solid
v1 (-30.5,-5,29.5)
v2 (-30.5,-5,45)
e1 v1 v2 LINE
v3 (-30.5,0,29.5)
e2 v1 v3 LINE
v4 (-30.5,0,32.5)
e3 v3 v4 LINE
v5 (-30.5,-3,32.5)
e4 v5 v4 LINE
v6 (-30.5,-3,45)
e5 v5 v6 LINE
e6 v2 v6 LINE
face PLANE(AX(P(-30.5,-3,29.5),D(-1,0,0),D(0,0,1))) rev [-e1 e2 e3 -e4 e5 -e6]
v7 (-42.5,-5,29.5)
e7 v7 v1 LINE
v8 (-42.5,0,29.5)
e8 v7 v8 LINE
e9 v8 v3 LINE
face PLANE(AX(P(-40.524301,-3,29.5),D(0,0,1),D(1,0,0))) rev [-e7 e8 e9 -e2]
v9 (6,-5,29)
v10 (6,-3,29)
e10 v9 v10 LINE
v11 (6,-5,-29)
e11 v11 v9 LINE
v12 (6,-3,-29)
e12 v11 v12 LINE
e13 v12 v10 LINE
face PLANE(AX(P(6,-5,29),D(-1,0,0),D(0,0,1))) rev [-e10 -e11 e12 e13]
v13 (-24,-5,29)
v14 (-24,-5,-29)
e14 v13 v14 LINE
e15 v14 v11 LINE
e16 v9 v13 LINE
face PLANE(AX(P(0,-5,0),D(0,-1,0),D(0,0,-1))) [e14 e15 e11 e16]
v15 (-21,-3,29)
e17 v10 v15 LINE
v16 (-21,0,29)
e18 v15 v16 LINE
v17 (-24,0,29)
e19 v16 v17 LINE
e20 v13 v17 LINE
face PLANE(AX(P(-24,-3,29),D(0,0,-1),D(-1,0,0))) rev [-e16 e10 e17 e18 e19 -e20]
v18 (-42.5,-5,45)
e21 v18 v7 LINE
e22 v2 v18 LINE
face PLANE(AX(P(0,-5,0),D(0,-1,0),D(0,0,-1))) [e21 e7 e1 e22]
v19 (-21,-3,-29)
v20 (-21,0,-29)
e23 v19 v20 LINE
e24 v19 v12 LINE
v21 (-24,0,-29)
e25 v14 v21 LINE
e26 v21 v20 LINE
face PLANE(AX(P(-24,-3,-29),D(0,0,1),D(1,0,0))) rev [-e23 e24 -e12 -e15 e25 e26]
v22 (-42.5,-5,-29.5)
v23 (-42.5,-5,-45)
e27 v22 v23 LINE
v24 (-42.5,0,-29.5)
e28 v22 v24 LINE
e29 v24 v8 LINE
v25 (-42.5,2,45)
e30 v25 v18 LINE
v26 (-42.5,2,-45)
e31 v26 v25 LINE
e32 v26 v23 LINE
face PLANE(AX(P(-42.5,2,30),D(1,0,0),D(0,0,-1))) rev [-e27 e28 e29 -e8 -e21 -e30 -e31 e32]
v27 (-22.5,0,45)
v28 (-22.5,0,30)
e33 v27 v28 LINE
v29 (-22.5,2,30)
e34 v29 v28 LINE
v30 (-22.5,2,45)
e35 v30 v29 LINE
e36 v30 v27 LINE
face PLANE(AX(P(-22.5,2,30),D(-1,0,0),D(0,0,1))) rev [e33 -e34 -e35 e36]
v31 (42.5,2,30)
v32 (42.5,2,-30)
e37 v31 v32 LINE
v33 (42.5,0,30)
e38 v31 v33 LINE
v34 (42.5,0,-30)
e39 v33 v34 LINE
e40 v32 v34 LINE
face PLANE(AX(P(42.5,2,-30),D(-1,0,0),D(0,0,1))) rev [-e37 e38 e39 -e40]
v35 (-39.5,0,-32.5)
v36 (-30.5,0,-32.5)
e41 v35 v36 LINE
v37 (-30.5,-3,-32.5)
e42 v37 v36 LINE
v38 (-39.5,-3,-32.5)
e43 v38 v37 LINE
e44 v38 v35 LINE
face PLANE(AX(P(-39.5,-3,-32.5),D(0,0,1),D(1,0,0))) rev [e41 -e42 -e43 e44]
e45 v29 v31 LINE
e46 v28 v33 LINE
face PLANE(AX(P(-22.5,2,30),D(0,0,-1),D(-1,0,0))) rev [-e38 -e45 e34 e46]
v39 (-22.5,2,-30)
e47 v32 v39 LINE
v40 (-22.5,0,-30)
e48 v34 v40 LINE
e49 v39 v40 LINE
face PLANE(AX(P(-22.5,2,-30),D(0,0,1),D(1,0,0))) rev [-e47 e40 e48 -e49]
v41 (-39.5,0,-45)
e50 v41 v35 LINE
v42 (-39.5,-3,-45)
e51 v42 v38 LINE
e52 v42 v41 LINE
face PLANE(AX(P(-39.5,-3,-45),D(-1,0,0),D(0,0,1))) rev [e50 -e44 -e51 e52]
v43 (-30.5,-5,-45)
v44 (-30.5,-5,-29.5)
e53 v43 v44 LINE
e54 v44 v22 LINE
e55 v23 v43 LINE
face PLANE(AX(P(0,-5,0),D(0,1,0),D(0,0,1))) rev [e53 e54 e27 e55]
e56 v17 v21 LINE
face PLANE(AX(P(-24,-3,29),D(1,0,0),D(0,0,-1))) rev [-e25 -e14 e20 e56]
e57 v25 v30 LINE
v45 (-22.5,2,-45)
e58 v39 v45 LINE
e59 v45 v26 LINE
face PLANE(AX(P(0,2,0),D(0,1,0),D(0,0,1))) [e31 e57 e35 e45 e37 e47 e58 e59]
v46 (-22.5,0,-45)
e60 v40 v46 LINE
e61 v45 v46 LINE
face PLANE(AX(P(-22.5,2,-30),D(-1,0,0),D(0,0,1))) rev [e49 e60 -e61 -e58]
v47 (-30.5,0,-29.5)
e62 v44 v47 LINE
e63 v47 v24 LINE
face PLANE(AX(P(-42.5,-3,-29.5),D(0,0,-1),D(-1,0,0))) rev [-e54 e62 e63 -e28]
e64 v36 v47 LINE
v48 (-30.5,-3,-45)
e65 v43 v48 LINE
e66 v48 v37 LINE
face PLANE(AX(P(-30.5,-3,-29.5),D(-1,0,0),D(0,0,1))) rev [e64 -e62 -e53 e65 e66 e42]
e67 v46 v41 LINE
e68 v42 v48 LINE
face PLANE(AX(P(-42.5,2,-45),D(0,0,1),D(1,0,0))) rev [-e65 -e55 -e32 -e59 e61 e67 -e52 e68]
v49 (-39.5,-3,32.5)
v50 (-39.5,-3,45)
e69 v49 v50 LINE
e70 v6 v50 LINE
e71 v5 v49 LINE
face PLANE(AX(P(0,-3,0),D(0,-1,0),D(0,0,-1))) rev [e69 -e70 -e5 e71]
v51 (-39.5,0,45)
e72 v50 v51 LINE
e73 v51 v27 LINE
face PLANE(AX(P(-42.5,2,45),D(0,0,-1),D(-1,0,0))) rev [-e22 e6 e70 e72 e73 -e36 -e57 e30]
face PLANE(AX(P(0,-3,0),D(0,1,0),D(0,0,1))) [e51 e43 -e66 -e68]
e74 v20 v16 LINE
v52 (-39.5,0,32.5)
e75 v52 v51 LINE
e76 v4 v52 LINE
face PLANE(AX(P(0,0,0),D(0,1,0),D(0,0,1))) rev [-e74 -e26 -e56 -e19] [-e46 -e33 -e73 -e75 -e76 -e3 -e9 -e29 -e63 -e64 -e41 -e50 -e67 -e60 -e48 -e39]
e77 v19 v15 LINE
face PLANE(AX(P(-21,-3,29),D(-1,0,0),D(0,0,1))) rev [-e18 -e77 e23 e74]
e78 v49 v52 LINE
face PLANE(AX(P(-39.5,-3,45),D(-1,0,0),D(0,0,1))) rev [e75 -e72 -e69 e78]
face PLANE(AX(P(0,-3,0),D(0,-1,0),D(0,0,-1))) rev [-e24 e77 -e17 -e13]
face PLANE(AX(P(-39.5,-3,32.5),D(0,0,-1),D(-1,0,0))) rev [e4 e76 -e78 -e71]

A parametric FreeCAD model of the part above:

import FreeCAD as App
import Part
import Sketcher

V = App.Vector
Q = App.Units.Quantity

doc = App.newDocument("Part")
body = doc.addObject("PartDesign::Body", "Body")

sketch1 = body.newObject("Sketcher::SketchObject", "Sketch")
sketch1.AttachmentSupport = (doc.getObject("XZ_Plane"), [""])
sketch1.MapMode = "FlatFace"
sketch1.addGeometry([
    Part.LineSegment(V(42, -30, 0), V(-22, -30, 0)),
    Part.LineSegment(V(-22, -30, 0), V(-22, -45, 0)),
    Part.LineSegment(V(-22, -45, 0), V(-42, -45, 0)),
    Part.LineSegment(V(-42, -45, 0), V(-42, 45, 0)),
    Part.LineSegment(V(-42, 45, 0), V(-22, 45, 0)),
    Part.LineSegment(V(-22, 45, 0), V(-22, 30, 0)),
    Part.LineSegment(V(-22, 30, 0), V(42, 30, 0)),
    Part.LineSegment(V(42, 30, 0), V(42, -30, 0)),
], False)
sketch1.addConstraint([
    Sketcher.Constraint("Coincident", 0, 2, 1, 1),
    Sketcher.Constraint("Coincident", 1, 2, 2, 1),
    Sketcher.Constraint("Coincident", 2, 2, 3, 1),
    Sketcher.Constraint("Coincident", 3, 2, 4, 1),
    Sketcher.Constraint("Coincident", 4, 2, 5, 1),
    Sketcher.Constraint("Coincident", 5, 2, 6, 1),
    Sketcher.Constraint("Coincident", 6, 2, 7, 1),
    Sketcher.Constraint("Coincident", 7, 2, 0, 1),
    Sketcher.Constraint("Horizontal", 0),
    Sketcher.Constraint("Vertical", 1),
    Sketcher.Constraint("Horizontal", 2),
    Sketcher.Constraint("Vertical", 3),
    Sketcher.Constraint("Horizontal", 4),
    Sketcher.Constraint("Vertical", 5),
    Sketcher.Constraint("Horizontal", 6),
    Sketcher.Constraint("Vertical", 7),
    Sketcher.Constraint("Symmetric", 1, 2, 4, 2, -1),
    Sketcher.Constraint("Equal", 1, 5),
    Sketcher.Constraint("DistanceX", 0, 2, 0, 1, Q("65 mm")),
    Sketcher.Constraint("DistanceX", 2, 2, 2, 1, Q("20 mm")),
    Sketcher.Constraint("DistanceY", 1, 2, 1, 1, Q("15 mm")),
    Sketcher.Constraint("DistanceY", 3, 1, 3, 2, Q("90 mm")),
    Sketcher.Constraint("DistanceX", 0, 2, -1, 1, Q("22.5 mm")),
])
pad1 = body.newObject("PartDesign::Pad", "Pad")
pad1.Profile = sketch1
pad1.Length = 2
pad1.Reversed = True

sketch2 = body.newObject("Sketcher::SketchObject", "Sketch001")
sketch2.AttachmentSupport = (doc.getObject("XZ_Plane"), [""])
sketch2.MapMode = "FlatFace"
sketch2.addGeometry([
    Part.LineSegment(V(-42.5, -45, 0), V(-39.5, -45, 0)),
    Part.LineSegment(V(-39.5, -45, 0), V(-39.5, -32.5, 0)),
    Part.LineSegment(V(-39.5, -32.5, 0), V(-30.5, -32.5, 0)),
    Part.LineSegment(V(-30.5, -32.5, 0), V(-30.5, -29.5, 0)),
    Part.LineSegment(V(-30.5, -29.5, 0), V(-42.5, -29.5, 0)),
    Part.LineSegment(V(-42.5, -29.5, 0), V(-42.5, -45, 0)),
    Part.LineSegment(V(-24, 29, 0), V(-24, -29, 0)),
    Part.LineSegment(V(-24, -29, 0), V(-21, -29, 0)),
    Part.LineSegment(V(-21, -29, 0), V(-21, 29, 0)),
    Part.LineSegment(V(-21, 29, 0), V(-24, 29, 0)),
    Part.LineSegment(V(-39.5, 45, 0), V(-42.5, 45, 0)),
    Part.LineSegment(V(-42.5, 45, 0), V(-42.5, 29.5, 0)),
    Part.LineSegment(V(-42.5, 29.5, 0), V(-30.5, 29.5, 0)),
    Part.LineSegment(V(-30.5, 29.5, 0), V(-30.5, 32.5, 0)),
    Part.LineSegment(V(-30.5, 32.5, 0), V(-39.5, 32.5, 0)),
    Part.LineSegment(V(-39.5, 32.5, 0), V(-39.5, 45, 0)),
], False)
sketch2.addConstraint([
    Sketcher.Constraint("Coincident", 0, 2, 1, 1),
    Sketcher.Constraint("Coincident", 1, 2, 2, 1),
    Sketcher.Constraint("Coincident", 2, 2, 3, 1),
    Sketcher.Constraint("Coincident", 3, 2, 4, 1),
    Sketcher.Constraint("Coincident", 4, 2, 5, 1),
    Sketcher.Constraint("Coincident", 5, 2, 0, 1),
    Sketcher.Constraint("Coincident", 6, 2, 7, 1),
    Sketcher.Constraint("Coincident", 7, 2, 8, 1),
    Sketcher.Constraint("Coincident", 8, 2, 9, 1),
    Sketcher.Constraint("Coincident", 9, 2, 6, 1),
    Sketcher.Constraint("Coincident", 10, 2, 11, 1),
    Sketcher.Constraint("Coincident", 11, 2, 12, 1),
    Sketcher.Constraint("Coincident", 12, 2, 13, 1),
    Sketcher.Constraint("Coincident", 13, 2, 14, 1),
    Sketcher.Constraint("Coincident", 14, 2, 15, 1),
    Sketcher.Constraint("Coincident", 15, 2, 10, 1),
    Sketcher.Constraint("Horizontal", 0),
    Sketcher.Constraint("Vertical", 1),
    Sketcher.Constraint("Horizontal", 2),
    Sketcher.Constraint("Vertical", 3),
    Sketcher.Constraint("Horizontal", 4),
    Sketcher.Constraint("Vertical", 5),
    Sketcher.Constraint("Vertical", 6),
    Sketcher.Constraint("Horizontal", 7),
    Sketcher.Constraint("Vertical", 8),
    Sketcher.Constraint("Horizontal", 9),
    Sketcher.Constraint("Horizontal", 10),
    Sketcher.Constraint("Vertical", 11),
    Sketcher.Constraint("Horizontal", 12),
    Sketcher.Constraint("Vertical", 13),
    Sketcher.Constraint("Horizontal", 14),
    Sketcher.Constraint("Vertical", 15),
    Sketcher.Constraint("Symmetric", 5, 2, 10, 2, -1),
    Sketcher.Constraint("Symmetric", 3, 2, 12, 2, -1),
    Sketcher.Constraint("Symmetric", 1, 2, 14, 2, -1),
    Sketcher.Constraint("Equal", 0, 7),
    Sketcher.Constraint("Equal", 10, 3),
    Sketcher.Constraint("DistanceX", 0, 1, 0, 2, Q("3 mm")),
    Sketcher.Constraint("DistanceX", 2, 1, 2, 2, Q("9 mm")),
    Sketcher.Constraint("DistanceY", 6, 2, 6, 1, Q("58 mm")),
    Sketcher.Constraint("DistanceY", 1, 1, 1, 2, Q("12.5 mm")),
    Sketcher.Constraint("DistanceY", 0, 2, -1, 1, Q("45 mm")),
    Sketcher.Constraint("DistanceX", 6, 2, -1, 1, Q("24 mm")),
    Sketcher.Constraint("DistanceY", 6, 2, -1, 1, Q("29 mm")),
    Sketcher.Constraint("DistanceX", 0, 2, -1, 1, Q("39.5 mm")),
])
pad2 = body.newObject("PartDesign::Pad", "Pad001")
pad2.Profile = sketch2
pad2.Length = 3

sketch3 = body.newObject("Sketcher::SketchObject", "Sketch002")
sketch3.AttachmentSupport = (doc.getObject("XZ_Plane"), [""])
sketch3.MapMode = "FlatFace"
sketch3.AttachmentOffset = App.Placement(V(0, 0, 3), App.Rotation())
sketch3.addGeometry([
    Part.LineSegment(V(-42, 45, 0), V(-42, 30, 0)),
    Part.LineSegment(V(-42, 30, 0), V(-30, 30, 0)),
    Part.LineSegment(V(-30, 30, 0), V(-30, 45, 0)),
    Part.LineSegment(V(-30, 45, 0), V(-42, 45, 0)),
    Part.LineSegment(V(-42, -30, 0), V(-42, -45, 0)),
    Part.LineSegment(V(-42, -45, 0), V(-30, -45, 0)),
    Part.LineSegment(V(-30, -45, 0), V(-30, -30, 0)),
    Part.LineSegment(V(-30, -30, 0), V(-42, -30, 0)),
    Part.LineSegment(V(-24, 29, 0), V(-24, -29, 0)),
    Part.LineSegment(V(-24, -29, 0), V(6, -29, 0)),
    Part.LineSegment(V(6, -29, 0), V(6, 29, 0)),
    Part.LineSegment(V(6, 29, 0), V(-24, 29, 0)),
], False)
sketch3.addConstraint([
    Sketcher.Constraint("Coincident", 0, 2, 1, 1),
    Sketcher.Constraint("Coincident", 1, 2, 2, 1),
    Sketcher.Constraint("Coincident", 2, 2, 3, 1),
    Sketcher.Constraint("Coincident", 3, 2, 0, 1),
    Sketcher.Constraint("Coincident", 4, 2, 5, 1),
    Sketcher.Constraint("Coincident", 5, 2, 6, 1),
    Sketcher.Constraint("Coincident", 6, 2, 7, 1),
    Sketcher.Constraint("Coincident", 7, 2, 4, 1),
    Sketcher.Constraint("Coincident", 8, 2, 9, 1),
    Sketcher.Constraint("Coincident", 9, 2, 10, 1),
    Sketcher.Constraint("Coincident", 10, 2, 11, 1),
    Sketcher.Constraint("Coincident", 11, 2, 8, 1),
    Sketcher.Constraint("Vertical", 0),
    Sketcher.Constraint("Horizontal", 1),
    Sketcher.Constraint("Vertical", 2),
    Sketcher.Constraint("Horizontal", 3),
    Sketcher.Constraint("Vertical", 4),
    Sketcher.Constraint("Horizontal", 5),
    Sketcher.Constraint("Vertical", 6),
    Sketcher.Constraint("Horizontal", 7),
    Sketcher.Constraint("Vertical", 8),
    Sketcher.Constraint("Horizontal", 9),
    Sketcher.Constraint("Vertical", 10),
    Sketcher.Constraint("Horizontal", 11),
    Sketcher.Constraint("Symmetric", 3, 2, 4, 2, -1),
    Sketcher.Constraint("Symmetric", 1, 2, 6, 2, -1),
    Sketcher.Constraint("DistanceX", 1, 1, 1, 2, Q("12 mm")),
    Sketcher.Constraint("DistanceX", 9, 1, 9, 2, Q("30 mm")),
    Sketcher.Constraint("DistanceY", 8, 2, 8, 1, Q("58 mm")),
    Sketcher.Constraint("DistanceY", 0, 2, 0, 1, Q("15.5 mm")),
    Sketcher.Constraint("DistanceY", -1, 1, 2, 2, Q("45 mm")),
    Sketcher.Constraint("DistanceX", 8, 2, -1, 1, Q("24 mm")),
    Sketcher.Constraint("DistanceY", 8, 2, -1, 1, Q("29 mm")),
    Sketcher.Constraint("DistanceX", 0, 2, -1, 1, Q("42.5 mm")),
])
pad3 = body.newObject("PartDesign::Pad", "Pad002")
pad3.Profile = sketch3
pad3.Length = 2

doc.recompute()
